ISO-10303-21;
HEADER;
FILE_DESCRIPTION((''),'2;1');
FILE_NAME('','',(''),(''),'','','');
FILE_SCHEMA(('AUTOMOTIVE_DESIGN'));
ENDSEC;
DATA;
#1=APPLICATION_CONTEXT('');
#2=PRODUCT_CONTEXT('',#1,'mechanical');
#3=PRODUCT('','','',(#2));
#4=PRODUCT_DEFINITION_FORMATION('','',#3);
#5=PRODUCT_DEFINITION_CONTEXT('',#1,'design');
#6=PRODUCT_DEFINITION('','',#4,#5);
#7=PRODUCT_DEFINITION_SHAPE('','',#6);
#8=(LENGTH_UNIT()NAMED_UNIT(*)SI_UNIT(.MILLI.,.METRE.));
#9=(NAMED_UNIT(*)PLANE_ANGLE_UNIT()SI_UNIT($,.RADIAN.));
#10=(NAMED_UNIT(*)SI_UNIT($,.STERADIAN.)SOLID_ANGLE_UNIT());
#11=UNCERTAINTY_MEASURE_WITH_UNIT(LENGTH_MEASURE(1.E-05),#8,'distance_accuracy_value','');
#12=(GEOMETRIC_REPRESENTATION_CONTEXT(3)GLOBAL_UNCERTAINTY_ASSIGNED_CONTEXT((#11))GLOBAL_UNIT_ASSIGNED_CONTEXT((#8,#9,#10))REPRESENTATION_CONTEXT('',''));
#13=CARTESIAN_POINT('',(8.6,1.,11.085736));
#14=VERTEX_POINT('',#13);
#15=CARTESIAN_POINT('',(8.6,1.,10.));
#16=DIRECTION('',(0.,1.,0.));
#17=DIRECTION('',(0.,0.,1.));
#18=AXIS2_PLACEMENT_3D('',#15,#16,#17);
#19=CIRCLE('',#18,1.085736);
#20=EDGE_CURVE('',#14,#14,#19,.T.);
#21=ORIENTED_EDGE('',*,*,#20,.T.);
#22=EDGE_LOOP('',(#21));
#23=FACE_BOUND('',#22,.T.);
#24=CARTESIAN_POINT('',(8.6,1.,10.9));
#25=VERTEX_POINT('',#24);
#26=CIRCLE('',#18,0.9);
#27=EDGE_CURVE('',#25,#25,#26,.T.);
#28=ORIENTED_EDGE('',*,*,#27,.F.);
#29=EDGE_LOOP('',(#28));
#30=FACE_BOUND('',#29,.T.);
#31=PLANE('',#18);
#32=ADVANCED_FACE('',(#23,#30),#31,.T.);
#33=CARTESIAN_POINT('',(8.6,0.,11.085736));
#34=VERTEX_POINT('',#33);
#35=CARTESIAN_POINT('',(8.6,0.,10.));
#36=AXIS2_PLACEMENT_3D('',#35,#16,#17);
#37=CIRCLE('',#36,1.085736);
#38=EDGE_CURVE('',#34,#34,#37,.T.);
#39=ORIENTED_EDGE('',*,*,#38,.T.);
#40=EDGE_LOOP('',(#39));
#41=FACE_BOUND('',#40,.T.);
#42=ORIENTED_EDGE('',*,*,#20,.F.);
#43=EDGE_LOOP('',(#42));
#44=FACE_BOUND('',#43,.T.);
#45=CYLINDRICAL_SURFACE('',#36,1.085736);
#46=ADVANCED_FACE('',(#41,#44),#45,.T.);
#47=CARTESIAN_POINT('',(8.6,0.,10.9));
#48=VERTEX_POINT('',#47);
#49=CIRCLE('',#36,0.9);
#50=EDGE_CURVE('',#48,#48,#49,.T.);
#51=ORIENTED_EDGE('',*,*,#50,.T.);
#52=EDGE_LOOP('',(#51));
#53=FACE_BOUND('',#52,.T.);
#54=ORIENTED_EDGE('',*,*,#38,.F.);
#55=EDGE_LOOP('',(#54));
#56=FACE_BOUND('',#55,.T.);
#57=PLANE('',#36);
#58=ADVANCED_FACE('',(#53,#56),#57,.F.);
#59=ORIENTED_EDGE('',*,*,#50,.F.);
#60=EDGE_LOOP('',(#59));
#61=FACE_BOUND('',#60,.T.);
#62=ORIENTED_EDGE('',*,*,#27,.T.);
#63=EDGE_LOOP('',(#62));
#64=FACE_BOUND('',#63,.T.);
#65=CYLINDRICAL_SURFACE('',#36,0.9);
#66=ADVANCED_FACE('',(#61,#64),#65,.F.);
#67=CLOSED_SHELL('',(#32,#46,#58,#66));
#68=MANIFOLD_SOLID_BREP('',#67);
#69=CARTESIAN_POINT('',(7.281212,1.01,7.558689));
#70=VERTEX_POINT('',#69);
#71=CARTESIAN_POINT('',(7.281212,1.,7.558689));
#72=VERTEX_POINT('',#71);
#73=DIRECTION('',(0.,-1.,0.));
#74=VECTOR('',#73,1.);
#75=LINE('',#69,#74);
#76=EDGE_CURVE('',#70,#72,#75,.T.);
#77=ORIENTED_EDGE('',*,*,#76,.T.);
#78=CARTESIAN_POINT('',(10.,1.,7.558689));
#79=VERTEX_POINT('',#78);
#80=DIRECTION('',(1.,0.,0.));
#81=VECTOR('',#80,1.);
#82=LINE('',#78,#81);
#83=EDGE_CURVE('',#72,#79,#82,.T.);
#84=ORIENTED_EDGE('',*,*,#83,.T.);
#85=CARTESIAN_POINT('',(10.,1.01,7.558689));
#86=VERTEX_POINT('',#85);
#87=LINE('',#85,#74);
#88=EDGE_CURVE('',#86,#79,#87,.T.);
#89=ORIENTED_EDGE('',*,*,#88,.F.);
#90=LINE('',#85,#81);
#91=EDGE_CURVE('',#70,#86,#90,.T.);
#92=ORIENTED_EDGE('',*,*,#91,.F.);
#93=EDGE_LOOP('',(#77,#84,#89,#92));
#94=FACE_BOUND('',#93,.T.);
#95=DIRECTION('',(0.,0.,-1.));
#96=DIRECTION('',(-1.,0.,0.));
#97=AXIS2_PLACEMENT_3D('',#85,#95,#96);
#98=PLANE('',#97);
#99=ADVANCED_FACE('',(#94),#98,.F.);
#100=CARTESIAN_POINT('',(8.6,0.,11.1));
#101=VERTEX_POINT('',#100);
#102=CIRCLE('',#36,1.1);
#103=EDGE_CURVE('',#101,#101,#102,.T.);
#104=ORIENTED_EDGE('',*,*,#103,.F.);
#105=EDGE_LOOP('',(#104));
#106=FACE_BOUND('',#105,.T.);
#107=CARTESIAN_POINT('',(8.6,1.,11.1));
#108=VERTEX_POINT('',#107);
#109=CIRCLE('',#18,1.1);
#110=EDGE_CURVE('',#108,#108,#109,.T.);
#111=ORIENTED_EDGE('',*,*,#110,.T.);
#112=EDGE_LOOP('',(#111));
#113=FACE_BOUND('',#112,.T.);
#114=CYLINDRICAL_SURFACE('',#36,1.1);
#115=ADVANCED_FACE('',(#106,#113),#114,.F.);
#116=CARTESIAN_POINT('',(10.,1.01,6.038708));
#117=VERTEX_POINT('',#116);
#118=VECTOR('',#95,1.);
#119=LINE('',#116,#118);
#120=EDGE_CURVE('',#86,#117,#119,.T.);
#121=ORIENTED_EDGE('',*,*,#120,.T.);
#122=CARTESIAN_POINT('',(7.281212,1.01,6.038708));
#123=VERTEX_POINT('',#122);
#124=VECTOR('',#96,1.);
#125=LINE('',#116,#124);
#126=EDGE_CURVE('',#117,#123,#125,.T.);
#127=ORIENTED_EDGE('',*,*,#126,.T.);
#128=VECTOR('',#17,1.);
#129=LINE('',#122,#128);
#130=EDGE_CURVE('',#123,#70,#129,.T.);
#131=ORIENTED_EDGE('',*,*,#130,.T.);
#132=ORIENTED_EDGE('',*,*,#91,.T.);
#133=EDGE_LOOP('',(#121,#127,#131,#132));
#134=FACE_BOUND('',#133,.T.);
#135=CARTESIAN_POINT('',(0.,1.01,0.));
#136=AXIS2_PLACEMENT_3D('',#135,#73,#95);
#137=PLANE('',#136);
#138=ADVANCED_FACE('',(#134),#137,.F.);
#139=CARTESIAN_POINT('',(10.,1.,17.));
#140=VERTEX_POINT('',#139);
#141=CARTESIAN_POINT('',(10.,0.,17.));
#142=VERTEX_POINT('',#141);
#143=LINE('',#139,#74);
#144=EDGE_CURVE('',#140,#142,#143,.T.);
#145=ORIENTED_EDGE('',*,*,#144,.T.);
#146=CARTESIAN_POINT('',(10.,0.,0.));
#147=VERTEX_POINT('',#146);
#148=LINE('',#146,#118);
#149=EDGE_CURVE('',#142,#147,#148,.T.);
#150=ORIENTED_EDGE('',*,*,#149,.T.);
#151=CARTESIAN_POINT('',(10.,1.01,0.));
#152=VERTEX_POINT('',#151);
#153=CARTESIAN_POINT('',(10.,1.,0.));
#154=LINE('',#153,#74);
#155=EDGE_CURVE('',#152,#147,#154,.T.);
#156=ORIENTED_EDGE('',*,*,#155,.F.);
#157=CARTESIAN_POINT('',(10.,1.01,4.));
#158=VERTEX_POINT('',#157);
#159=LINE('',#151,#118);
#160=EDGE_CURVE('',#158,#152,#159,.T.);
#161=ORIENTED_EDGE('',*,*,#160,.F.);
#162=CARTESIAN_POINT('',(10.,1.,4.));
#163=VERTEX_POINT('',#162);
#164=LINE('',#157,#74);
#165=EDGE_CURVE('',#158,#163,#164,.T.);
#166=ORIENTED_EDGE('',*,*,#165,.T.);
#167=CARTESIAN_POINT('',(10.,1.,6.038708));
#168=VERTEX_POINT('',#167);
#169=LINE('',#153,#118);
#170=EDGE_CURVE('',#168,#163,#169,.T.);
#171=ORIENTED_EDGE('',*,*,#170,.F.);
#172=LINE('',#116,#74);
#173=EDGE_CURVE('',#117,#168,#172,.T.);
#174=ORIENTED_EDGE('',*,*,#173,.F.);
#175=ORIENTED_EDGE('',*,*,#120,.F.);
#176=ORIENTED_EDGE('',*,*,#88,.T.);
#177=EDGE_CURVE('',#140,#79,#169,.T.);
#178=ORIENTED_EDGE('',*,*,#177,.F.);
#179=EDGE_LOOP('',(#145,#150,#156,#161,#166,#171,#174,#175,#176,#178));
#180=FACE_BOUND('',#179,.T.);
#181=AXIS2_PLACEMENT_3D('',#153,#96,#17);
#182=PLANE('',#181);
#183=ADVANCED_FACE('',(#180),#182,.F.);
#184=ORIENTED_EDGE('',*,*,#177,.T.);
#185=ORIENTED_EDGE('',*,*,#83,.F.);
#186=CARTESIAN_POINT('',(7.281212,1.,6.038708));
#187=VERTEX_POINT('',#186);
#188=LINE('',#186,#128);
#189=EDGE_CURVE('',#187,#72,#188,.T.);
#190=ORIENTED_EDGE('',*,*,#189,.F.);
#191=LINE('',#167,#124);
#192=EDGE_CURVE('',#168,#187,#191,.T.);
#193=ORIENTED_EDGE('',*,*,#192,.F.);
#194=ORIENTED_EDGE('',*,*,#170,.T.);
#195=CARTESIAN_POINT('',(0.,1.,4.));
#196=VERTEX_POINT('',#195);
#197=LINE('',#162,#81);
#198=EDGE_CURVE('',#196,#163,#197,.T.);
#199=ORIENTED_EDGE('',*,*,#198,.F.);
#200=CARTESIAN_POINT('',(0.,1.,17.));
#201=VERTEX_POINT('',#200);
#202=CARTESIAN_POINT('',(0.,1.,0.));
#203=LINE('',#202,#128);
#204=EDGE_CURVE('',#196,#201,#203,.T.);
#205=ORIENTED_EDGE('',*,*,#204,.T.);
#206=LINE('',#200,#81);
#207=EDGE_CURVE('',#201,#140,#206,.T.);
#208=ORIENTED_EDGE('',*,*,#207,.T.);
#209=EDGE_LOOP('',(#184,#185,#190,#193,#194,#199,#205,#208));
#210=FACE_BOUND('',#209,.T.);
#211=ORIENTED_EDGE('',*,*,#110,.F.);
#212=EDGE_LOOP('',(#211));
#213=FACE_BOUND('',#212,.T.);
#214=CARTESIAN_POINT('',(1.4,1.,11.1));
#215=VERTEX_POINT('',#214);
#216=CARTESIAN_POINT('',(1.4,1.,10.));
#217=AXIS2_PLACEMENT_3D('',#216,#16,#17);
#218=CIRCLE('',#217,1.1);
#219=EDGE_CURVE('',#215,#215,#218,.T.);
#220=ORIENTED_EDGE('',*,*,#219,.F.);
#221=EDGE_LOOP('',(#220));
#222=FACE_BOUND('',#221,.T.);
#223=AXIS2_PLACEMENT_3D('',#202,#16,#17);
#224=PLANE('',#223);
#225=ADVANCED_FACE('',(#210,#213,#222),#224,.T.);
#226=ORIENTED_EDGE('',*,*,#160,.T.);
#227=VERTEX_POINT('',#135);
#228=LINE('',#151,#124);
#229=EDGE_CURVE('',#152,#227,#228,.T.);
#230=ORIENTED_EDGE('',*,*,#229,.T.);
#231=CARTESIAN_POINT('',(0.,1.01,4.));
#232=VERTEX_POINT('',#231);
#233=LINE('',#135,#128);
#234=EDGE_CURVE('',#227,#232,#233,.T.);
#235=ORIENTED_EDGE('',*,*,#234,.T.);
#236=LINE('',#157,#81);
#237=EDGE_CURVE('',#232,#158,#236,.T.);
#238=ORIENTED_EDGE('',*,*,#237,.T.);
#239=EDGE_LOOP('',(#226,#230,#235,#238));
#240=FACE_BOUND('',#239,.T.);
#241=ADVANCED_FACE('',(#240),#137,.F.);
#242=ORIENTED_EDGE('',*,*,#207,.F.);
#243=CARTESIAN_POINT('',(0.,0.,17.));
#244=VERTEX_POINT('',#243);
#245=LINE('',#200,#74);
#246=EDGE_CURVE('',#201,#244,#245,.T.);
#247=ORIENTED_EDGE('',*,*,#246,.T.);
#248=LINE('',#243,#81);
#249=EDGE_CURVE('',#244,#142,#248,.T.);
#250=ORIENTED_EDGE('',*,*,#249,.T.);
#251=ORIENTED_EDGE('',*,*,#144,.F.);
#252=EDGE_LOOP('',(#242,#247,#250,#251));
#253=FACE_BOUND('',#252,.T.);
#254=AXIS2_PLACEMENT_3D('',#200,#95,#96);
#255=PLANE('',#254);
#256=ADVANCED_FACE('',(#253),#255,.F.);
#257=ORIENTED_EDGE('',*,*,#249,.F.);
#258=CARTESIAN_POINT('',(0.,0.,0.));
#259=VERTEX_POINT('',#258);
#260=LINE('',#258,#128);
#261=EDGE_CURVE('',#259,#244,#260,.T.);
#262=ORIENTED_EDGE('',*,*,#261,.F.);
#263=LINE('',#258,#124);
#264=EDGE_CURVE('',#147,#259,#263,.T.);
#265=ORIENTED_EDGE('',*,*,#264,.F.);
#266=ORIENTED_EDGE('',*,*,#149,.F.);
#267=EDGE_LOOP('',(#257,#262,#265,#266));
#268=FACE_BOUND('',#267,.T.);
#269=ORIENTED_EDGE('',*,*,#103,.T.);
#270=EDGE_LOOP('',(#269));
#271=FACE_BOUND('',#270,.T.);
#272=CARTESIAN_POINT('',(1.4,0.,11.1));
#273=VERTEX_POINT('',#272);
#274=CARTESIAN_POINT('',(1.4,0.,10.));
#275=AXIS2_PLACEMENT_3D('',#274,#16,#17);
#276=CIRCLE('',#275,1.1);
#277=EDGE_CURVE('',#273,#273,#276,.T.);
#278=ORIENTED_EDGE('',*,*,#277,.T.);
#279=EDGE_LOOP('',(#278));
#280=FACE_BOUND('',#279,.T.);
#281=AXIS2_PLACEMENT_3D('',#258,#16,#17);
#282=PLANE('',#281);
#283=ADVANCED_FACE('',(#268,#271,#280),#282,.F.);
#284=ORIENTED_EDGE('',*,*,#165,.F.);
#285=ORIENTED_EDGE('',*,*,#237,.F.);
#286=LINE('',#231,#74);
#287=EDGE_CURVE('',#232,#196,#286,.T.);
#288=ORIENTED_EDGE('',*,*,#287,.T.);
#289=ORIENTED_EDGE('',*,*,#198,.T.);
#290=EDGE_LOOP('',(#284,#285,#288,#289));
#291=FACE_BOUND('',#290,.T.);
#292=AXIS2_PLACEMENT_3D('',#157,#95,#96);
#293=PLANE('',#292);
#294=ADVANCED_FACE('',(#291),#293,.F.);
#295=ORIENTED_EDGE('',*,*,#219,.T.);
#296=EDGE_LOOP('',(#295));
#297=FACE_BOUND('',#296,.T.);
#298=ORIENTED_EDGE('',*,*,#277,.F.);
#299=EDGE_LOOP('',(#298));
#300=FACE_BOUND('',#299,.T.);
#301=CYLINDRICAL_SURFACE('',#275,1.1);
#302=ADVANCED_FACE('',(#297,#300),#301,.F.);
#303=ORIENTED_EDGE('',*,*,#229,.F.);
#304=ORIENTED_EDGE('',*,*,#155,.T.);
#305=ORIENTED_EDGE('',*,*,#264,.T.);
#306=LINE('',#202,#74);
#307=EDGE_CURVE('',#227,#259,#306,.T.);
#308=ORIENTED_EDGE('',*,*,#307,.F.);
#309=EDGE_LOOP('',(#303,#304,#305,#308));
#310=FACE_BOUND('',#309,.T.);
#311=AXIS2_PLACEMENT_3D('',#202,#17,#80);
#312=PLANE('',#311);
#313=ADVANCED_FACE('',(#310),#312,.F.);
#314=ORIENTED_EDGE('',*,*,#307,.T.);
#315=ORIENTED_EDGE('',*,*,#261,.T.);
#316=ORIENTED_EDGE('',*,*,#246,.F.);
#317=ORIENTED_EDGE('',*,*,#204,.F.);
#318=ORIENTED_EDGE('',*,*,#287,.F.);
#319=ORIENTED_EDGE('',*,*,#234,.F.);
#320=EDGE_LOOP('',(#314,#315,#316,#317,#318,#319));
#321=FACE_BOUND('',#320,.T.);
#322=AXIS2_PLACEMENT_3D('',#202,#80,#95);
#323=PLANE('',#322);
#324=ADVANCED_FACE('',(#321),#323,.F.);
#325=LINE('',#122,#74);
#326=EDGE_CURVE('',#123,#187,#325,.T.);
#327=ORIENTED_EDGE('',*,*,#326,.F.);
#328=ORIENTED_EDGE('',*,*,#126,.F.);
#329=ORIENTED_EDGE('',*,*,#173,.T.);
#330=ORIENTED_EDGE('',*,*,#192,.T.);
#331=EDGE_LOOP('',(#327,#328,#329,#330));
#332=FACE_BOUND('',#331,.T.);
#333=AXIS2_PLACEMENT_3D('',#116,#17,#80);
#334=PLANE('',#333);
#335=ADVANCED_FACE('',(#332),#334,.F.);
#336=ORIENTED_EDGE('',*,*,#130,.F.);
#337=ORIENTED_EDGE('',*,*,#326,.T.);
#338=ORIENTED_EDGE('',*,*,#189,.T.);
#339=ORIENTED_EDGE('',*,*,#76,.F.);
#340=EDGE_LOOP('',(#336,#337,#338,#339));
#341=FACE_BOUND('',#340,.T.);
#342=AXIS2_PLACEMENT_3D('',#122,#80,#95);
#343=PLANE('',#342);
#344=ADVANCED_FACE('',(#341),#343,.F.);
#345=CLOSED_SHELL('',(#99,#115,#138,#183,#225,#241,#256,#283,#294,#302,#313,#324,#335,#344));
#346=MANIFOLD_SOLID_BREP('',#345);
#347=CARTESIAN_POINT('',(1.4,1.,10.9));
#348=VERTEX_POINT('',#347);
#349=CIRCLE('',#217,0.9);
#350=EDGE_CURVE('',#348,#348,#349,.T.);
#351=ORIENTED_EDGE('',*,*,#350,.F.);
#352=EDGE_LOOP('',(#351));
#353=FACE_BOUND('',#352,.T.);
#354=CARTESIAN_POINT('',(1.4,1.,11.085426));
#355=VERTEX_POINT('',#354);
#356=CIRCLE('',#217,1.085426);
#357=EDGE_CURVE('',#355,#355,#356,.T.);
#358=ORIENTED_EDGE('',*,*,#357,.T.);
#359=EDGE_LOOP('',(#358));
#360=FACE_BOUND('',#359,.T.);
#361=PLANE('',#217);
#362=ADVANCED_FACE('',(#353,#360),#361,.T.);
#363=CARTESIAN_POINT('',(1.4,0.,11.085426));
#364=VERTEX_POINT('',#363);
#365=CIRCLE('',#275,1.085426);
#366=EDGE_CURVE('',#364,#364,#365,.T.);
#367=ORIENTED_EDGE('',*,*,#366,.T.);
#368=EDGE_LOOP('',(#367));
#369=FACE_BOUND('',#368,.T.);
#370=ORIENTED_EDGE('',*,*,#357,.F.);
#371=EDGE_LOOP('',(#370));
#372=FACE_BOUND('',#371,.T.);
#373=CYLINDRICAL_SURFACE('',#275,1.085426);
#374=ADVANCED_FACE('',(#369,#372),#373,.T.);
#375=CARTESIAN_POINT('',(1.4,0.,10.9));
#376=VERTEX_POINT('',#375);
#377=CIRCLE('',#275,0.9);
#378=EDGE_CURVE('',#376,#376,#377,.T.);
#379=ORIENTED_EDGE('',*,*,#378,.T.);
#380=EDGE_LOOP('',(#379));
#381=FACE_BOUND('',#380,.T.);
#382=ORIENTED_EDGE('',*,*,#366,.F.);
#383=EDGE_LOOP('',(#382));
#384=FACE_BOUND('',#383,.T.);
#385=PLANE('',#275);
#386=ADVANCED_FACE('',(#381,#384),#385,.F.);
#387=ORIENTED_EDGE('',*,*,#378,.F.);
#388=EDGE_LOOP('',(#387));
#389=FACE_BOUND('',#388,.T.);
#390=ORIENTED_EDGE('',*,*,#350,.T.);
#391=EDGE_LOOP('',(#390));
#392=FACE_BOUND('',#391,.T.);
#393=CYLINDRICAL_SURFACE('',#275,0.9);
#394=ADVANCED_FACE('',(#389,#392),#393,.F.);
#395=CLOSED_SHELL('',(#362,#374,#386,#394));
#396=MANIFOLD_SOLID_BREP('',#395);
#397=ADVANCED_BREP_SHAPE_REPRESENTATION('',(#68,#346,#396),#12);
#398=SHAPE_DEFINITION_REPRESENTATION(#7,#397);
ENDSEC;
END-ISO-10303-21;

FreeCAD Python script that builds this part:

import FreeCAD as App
import Part
import Sketcher
Q = App.Units.Quantity

doc = App.newDocument("Part")
body = doc.addObject("PartDesign::Body", "Body")

# Sketch on XZ plane
sketch1 = doc.addObject("Sketcher::SketchObject", "Sketch")
body.addObject(sketch1)
sketch1.AttachmentSupport = (doc.XZ_Plane, [""])
sketch1.MapMode = "FlatFace"
sketch1.addGeometry([
    Part.LineSegment(App.Vector(0, 0, 0), App.Vector(0, 17, 0)),
    Part.LineSegment(App.Vector(0, 17, 0), App.Vector(10, 17, 0)),
    Part.LineSegment(App.Vector(10, 17, 0), App.Vector(10, 0, 0)),
    Part.LineSegment(App.Vector(10, 0, 0), App.Vector(0, 0, 0)),
], False)
sketch1.addConstraint([
    Sketcher.Constraint("Coincident", 0, 2, 1, 1),
    Sketcher.Constraint("Coincident", 1, 2, 2, 1),
    Sketcher.Constraint("Coincident", 2, 2, 3, 1),
    Sketcher.Constraint("Coincident", 3, 2, 0, 1),
    Sketcher.Constraint("Vertical", 0),
    Sketcher.Constraint("Horizontal", 1),
    Sketcher.Constraint("Vertical", 2),
    Sketcher.Constraint("Horizontal", 3),
    Sketcher.Constraint("Coincident", 3, 2, -1, 1),
    Sketcher.Constraint("DistanceX", 1, 1, 1, 2, Q("10 mm")),
    Sketcher.Constraint("DistanceY", 0, 1, 0, 2, Q("17 mm")),
])
pad1 = doc.addObject("PartDesign::Pad", "Pad")
body.addObject(pad1)
pad1.Profile = sketch1
pad1.Length = 1
pad1.Reversed = True

# Sketch on XZ plane
sketch2 = doc.addObject("Sketcher::SketchObject", "Sketch001")
body.addObject(sketch2)
sketch2.AttachmentSupport = (doc.XZ_Plane, [""])
sketch2.MapMode = "FlatFace"
sketch2.AttachmentOffset = App.Placement(App.Vector(0, 0, -1), App.Rotation())
sketch2.addGeometry([
    Part.Circle(App.Vector(1.4, 10, 0), App.Vector(0, 0, 1), 1.1),
    Part.Circle(App.Vector(8.6, 10, 0), App.Vector(0, 0, 1), 1.1),
], False)
sketch2.addConstraint([
    Sketcher.Constraint("Equal", 0, 1),
    Sketcher.Constraint("Horizontal", 0, 3, 1, 3),
    Sketcher.Constraint("Diameter", 0, Q("2.2 mm")),
    Sketcher.Constraint("DistanceY", -1, 1, 0, 3, Q("10 mm")),
    Sketcher.Constraint("DistanceX", -1, 1, 0, 3, Q("1.4 mm")),
    Sketcher.Constraint("DistanceX", -1, 1, 1, 3, Q("8.6 mm")),
])
pocket1 = doc.addObject("PartDesign::Pocket", "Pocket")
body.addObject(pocket1)
pocket1.Profile = sketch2
pocket1.Length = 1
pocket1.Reversed = True

# Sketch on XZ plane
sketch3 = doc.addObject("Sketcher::SketchObject", "Sketch002")
body.addObject(sketch3)
sketch3.AttachmentSupport = (doc.XZ_Plane, [""])
sketch3.MapMode = "FlatFace"
sketch3.AttachmentOffset = App.Placement(App.Vector(0, 0, -1), App.Rotation())
sketch3.addGeometry([
    Part.LineSegment(App.Vector(0, 0, 0), App.Vector(0, 4, 0)),
    Part.LineSegment(App.Vector(0, 4, 0), App.Vector(10, 4, 0)),
    Part.LineSegment(App.Vector(10, 4, 0), App.Vector(10, 0, 0)),
    Part.LineSegment(App.Vector(10, 0, 0), App.Vector(0, 0, 0)),
], False)
sketch3.addConstraint([
    Sketcher.Constraint("Coincident", 0, 2, 1, 1),
    Sketcher.Constraint("Coincident", 1, 2, 2, 1),
    Sketcher.Constraint("Coincident", 2, 2, 3, 1),
    Sketcher.Constraint("Coincident", 3, 2, 0, 1),
    Sketcher.Constraint("Vertical", 0),
    Sketcher.Constraint("Horizontal", 1),
    Sketcher.Constraint("Vertical", 2),
    Sketcher.Constraint("Horizontal", 3),
    Sketcher.Constraint("Coincident", 3, 2, -1, 1),
    Sketcher.Constraint("DistanceX", 1, 1, 1, 2, Q("10 mm")),
    Sketcher.Constraint("DistanceY", 0, 1, 0, 2, Q("4 mm")),
])
pad2 = doc.addObject("PartDesign::Pad", "Pad001")
body.addObject(pad2)
pad2.Profile = sketch3
pad2.Length = 0.01
pad2.Reversed = True

# Sketch on XZ plane
sketch4 = doc.addObject("Sketcher::SketchObject", "Sketch003")
body.addObject(sketch4)
sketch4.AttachmentSupport = (doc.XZ_Plane, [""])
sketch4.MapMode = "FlatFace"
sketch4.AttachmentOffset = App.Placement(App.Vector(0, 0, -1), App.Rotation())
sketch4.addGeometry([
    Part.LineSegment(App.Vector(7.3, 6, 0), App.Vector(7.3, 7.6, 0)),
    Part.LineSegment(App.Vector(7.3, 7.6, 0), App.Vector(10, 7.6, 0)),
    Part.LineSegment(App.Vector(10, 7.6, 0), App.Vector(10, 6, 0)),
    Part.LineSegment(App.Vector(10, 6, 0), App.Vector(7.3, 6, 0)),
], False)
sketch4.addConstraint([
    Sketcher.Constraint("Coincident", 0, 2, 1, 1),
    Sketcher.Constraint("Coincident", 1, 2, 2, 1),
    Sketcher.Constraint("Coincident", 2, 2, 3, 1),
    Sketcher.Constraint("Coincident", 3, 2, 0, 1),
    Sketcher.Constraint("Vertical", 0),
    Sketcher.Constraint("Horizontal", 1),
    Sketcher.Constraint("Vertical", 2),
    Sketcher.Constraint("Horizontal", 3),
    Sketcher.Constraint("DistanceX", -1, 1, 1, 2, Q("10 mm")),
    Sketcher.Constraint("DistanceX", 1, 1, 1, 2, Q("2.718788 mm")),
    Sketcher.Constraint("DistanceY", 0, 1, 0, 2, Q("1.519981 mm")),
    Sketcher.Constraint("DistanceY", -1, 1, 0, 2, Q("7.558689 mm")),
])
pad3 = doc.addObject("PartDesign::Pad", "Pad002")
body.addObject(pad3)
pad3.Profile = sketch4
pad3.Length = 0.01
pad3.Reversed = True
body2 = doc.addObject("PartDesign::Body", "Body001")

# Sketch on XZ plane
sketch5 = doc.addObject("Sketcher::SketchObject", "Sketch004")
body2.addObject(sketch5)
sketch5.AttachmentSupport = (doc.getObject("XZ_Plane001"), [""])
sketch5.MapMode = "FlatFace"
sketch5.AttachmentOffset = App.Placement(App.Vector(0, 0, -1), App.Rotation())
sketch5.addGeometry([
    Part.Circle(App.Vector(8.6, 10, 0), App.Vector(0, 0, 1), 1.1),
    Part.Circle(App.Vector(8.6, 10, 0), App.Vector(0, 0, 1), 0.9),
], False)
sketch5.addConstraint([
    Sketcher.Constraint("Coincident", 1, 3, 0, 3),
    Sketcher.Constraint("Diameter", 1, Q("1.8 mm")),
    Sketcher.Constraint("DistanceY", -1, 1, 0, 3, Q("10 mm")),
    Sketcher.Constraint("DistanceX", -1, 1, 0, 3, Q("8.6 mm")),
    Sketcher.Constraint("Diameter", 0, Q("2.171472 mm")),
])
pad4 = doc.addObject("PartDesign::Pad", "Pad003")
body2.addObject(pad4)
pad4.Profile = sketch5
pad4.Length = 1
body3 = doc.addObject("PartDesign::Body", "Body002")

# Sketch on XZ plane
sketch6 = doc.addObject("Sketcher::SketchObject", "Sketch005")
body3.addObject(sketch6)
sketch6.AttachmentSupport = (doc.getObject("XZ_Plane002"), [""])
sketch6.MapMode = "FlatFace"
sketch6.AttachmentOffset = App.Placement(App.Vector(0, 0, -1), App.Rotation())
sketch6.addGeometry([
    Part.Circle(App.Vector(1.4, 10, 0), App.Vector(0, 0, 1), 1.1),
    Part.Circle(App.Vector(1.4, 10, 0), App.Vector(0, 0, 1), 0.9),
], False)
sketch6.addConstraint([
    Sketcher.Constraint("Coincident", 1, 3, 0, 3),
    Sketcher.Constraint("Diameter", 1, Q("1.8 mm")),
    Sketcher.Constraint("DistanceY", -1, 1, 0, 3, Q("10 mm")),
    Sketcher.Constraint("DistanceX", -1, 1, 0, 3, Q("1.4 mm")),
    Sketcher.Constraint("Diameter", 0, Q("2.170853 mm")),
])
pad5 = doc.addObject("PartDesign::Pad", "Pad004")
body3.addObject(pad5)
pad5.Profile = sketch6
pad5.Length = 1

doc.recompute()
